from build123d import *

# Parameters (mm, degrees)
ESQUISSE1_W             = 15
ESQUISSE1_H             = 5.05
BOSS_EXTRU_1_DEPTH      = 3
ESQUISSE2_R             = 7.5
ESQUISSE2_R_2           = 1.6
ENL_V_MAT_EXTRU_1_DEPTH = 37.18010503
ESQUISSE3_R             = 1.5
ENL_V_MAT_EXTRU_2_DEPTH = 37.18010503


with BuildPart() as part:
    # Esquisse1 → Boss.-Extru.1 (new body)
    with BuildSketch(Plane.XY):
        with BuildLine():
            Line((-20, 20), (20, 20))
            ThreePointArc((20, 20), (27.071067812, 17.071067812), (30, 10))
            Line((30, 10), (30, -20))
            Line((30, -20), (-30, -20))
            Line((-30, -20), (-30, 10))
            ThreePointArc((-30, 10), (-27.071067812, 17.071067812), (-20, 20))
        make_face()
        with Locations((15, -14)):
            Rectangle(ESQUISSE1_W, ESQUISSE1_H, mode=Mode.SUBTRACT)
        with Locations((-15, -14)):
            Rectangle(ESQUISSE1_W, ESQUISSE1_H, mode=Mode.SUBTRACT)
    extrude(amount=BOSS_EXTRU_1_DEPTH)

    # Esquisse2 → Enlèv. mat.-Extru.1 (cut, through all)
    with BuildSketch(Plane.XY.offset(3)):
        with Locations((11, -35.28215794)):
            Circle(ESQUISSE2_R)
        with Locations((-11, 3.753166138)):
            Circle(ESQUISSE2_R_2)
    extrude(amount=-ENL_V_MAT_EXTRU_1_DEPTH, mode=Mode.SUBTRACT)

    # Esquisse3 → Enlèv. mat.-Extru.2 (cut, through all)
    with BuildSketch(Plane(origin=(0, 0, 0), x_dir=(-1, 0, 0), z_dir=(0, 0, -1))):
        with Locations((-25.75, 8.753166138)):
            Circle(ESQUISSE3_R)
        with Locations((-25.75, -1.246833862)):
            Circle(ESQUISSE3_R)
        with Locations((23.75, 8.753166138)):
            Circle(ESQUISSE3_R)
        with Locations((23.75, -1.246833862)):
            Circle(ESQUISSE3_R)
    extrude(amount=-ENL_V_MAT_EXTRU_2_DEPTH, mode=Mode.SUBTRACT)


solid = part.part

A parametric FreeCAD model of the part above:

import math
import FreeCAD as App
import Part
import Sketcher
from FreeCAD import Vector
Q = App.Units.Quantity


def add_polygon(sketch, points):
    """Adds a closed chain of lines whose ends are joined by coincident constraints."""
    first, n = sketch.GeometryCount, len(points)
    for a, b in zip(points, points[1:] + points[:1]):
        sketch.addGeometry(Part.LineSegment(App.Vector(*a, 0), App.Vector(*b, 0)), False)
    for i in range(n):
        sketch.addConstraint(Sketcher.Constraint("Coincident", first + i, 2, first + (i + 1) % n, 1))

doc = App.newDocument("Part")
body = doc.addObject("PartDesign::Body", "Body")

sketch1 = body.newObject("Sketcher::SketchObject", "Sketch")
sketch1.AttachmentSupport = (doc.getObject("XY_Plane"), [""])
sketch1.MapMode = "FlatFace"
sketch1.addGeometry(Part.LineSegment(Vector(20, 20, 0), Vector(-20, 20, 0)), False)
sketch1.addGeometry(Part.ArcOfCircle(Part.Circle(Vector(-20, 10, 0), Vector(0, 0, 1), 10), math.radians(90), math.radians(180)), False)
sketch1.addGeometry(Part.LineSegment(Vector(-30, 10, 0), Vector(-30, -20, 0)), False)
sketch1.addGeometry(Part.LineSegment(Vector(-30, -20, 0), Vector(30, -20, 0)), False)
sketch1.addGeometry(Part.LineSegment(Vector(30, -20, 0), Vector(30, 10, 0)), False)
sketch1.addGeometry(Part.ArcOfCircle(Part.Circle(Vector(20, 10, 0), Vector(0, 0, 1), 10), math.radians(0), math.radians(90)), False)
add_polygon(sketch1, [(8, -17), (8, -11), (22, -11), (22, -17)])
add_polygon(sketch1, [(-22, -17), (-22, -11), (-8, -11), (-8, -17)])
sketch1.addConstraint(Sketcher.Constraint("Tangent", 0, 2, 1, 1))
sketch1.addConstraint(Sketcher.Constraint("Tangent", 1, 2, 2, 1))
sketch1.addConstraint(Sketcher.Constraint("Coincident", 2, 2, 3, 1))
sketch1.addConstraint(Sketcher.Constraint("Coincident", 3, 2, 4, 1))
sketch1.addConstraint(Sketcher.Constraint("Tangent", 4, 2, 5, 1))
sketch1.addConstraint(Sketcher.Constraint("Tangent", 5, 2, 0, 1))
sketch1.addConstraint(Sketcher.Constraint("Horizontal", 0))
sketch1.addConstraint(Sketcher.Constraint("Vertical", 2))
sketch1.addConstraint(Sketcher.Constraint("Horizontal", 3))
sketch1.addConstraint(Sketcher.Constraint("Vertical", 4))
sketch1.addConstraint(Sketcher.Constraint("Vertical", 6))
sketch1.addConstraint(Sketcher.Constraint("Horizontal", 7))
sketch1.addConstraint(Sketcher.Constraint("Vertical", 8))
sketch1.addConstraint(Sketcher.Constraint("Horizontal", 9))
sketch1.addConstraint(Sketcher.Constraint("Vertical", 10))
sketch1.addConstraint(Sketcher.Constraint("Horizontal", 11))
sketch1.addConstraint(Sketcher.Constraint("Vertical", 12))
sketch1.addConstraint(Sketcher.Constraint("Horizontal", 13))
sketch1.addConstraint(Sketcher.Constraint("Equal", 1, 5))
sketch1.addConstraint(Sketcher.Constraint("Symmetric", 7, 2, 10, 2, -2))
sketch1.addConstraint(Sketcher.Constraint("Symmetric", 9, 2, 12, 2, -2))
sketch1.addConstraint(Sketcher.Constraint("Radius", 1, Q("10 mm")))
sketch1.addConstraint(Sketcher.Constraint("DistanceX", 0, 2, 0, 1, Q("40 mm")))
sketch1.addConstraint(Sketcher.Constraint("DistanceX", 7, 1, 7, 2, Q("15 mm")))
sketch1.addConstraint(Sketcher.Constraint("DistanceY", 2, 2, 2, 1, Q("30 mm")))
sketch1.addConstraint(Sketcher.Constraint("DistanceX", 1, 3, -1, 1, Q("20 mm")))
sketch1.addConstraint(Sketcher.Constraint("DistanceY", -1, 1, 1, 3, Q("10 mm")))
sketch1.addConstraint(Sketcher.Constraint("DistanceX", 10, 2, 6, 2, Q("30 mm")))
sketch1.addConstraint(Sketcher.Constraint("DistanceY", 6, 1, 6, 2, Q("5.05 mm")))
sketch1.addConstraint(Sketcher.Constraint("DistanceY", 6, 2, -1, 1, Q("11.475 mm")))
pad1 = body.newObject("PartDesign::Pad", "Pad")
pad1.Profile = sketch1
pad1.Length = 3

sketch2 = body.newObject("Sketcher::SketchObject", "Sketch001")
sketch2.AttachmentSupport = (doc.getObject("XY_Plane"), [""])
sketch2.MapMode = "FlatFace"
sketch2.AttachmentOffset = App.Placement(Vector(0, 0, 3), App.Rotation())
sketch2.addGeometry(Part.Circle(Vector(11, -35.3, 0), Vector(0, 0, 1), 7.5), False)
sketch2.addGeometry(Part.Circle(Vector(-11, 3.8, 0), Vector(0, 0, 1), 1.6), False)
sketch2.addConstraint(Sketcher.Constraint("Diameter", 0, Q("15 mm")))
sketch2.addConstraint(Sketcher.Constraint("Diameter", 1, Q("3.2 mm")))
sketch2.addConstraint(Sketcher.Constraint("DistanceX", -1, 1, 0, 3, Q("11 mm")))
sketch2.addConstraint(Sketcher.Constraint("DistanceX", 1, 3, -1, 1, Q("11 mm")))
sketch2.addConstraint(Sketcher.Constraint("DistanceY", 0, 3, -1, 1, Q("35.282158 mm")))
sketch2.addConstraint(Sketcher.Constraint("DistanceY", -1, 1, 1, 3, Q("3.753166 mm")))
pocket1 = body.newObject("PartDesign::Pocket", "Pocket")
pocket1.Profile = sketch2
pocket1.Type = "ThroughAll"

sketch3 = body.newObject("Sketcher::SketchObject", "Sketch002")
sketch3.AttachmentSupport = (doc.getObject("XY_Plane"), [""])
sketch3.MapMode = "FlatFace"
sketch3.addGeometry(Part.Circle(Vector(25.8, 8.8, 0), Vector(0, 0, 1), 1.5), False)
sketch3.addGeometry(Part.Circle(Vector(25.8, -1.2, 0), Vector(0, 0, 1), 1.5), False)
sketch3.addGeometry(Part.Circle(Vector(-23.8, 8.8, 0), Vector(0, 0, 1), 1.5), False)
sketch3.addGeometry(Part.Circle(Vector(-23.8, -1.2, 0), Vector(0, 0, 1), 1.5), False)
sketch3.addConstraint(Sketcher.Constraint("Equal", 0, 1))
sketch3.addConstraint(Sketcher.Constraint("Equal", 1, 2))
sketch3.addConstraint(Sketcher.Constraint("Equal", 2, 3))
sketch3.addConstraint(Sketcher.Constraint("Horizontal", 0, 3, 2, 3))
sketch3.addConstraint(Sketcher.Constraint("Horizontal", 1, 3, 3, 3))
sketch3.addConstraint(Sketcher.Constraint("Vertical", 0, 3, 1, 3))
sketch3.addConstraint(Sketcher.Constraint("Vertical", 2, 3, 3, 3))
sketch3.addConstraint(Sketcher.Constraint("Diameter", 0, Q("3 mm")))
sketch3.addConstraint(Sketcher.Constraint("DistanceY", 1, 3, 0, 3, Q("10 mm")))
sketch3.addConstraint(Sketcher.Constraint("DistanceX", 2, 3, 0, 3, Q("49.5 mm")))
sketch3.addConstraint(Sketcher.Constraint("DistanceX", -1, 1, 0, 3, Q("25.75 mm")))
sketch3.addConstraint(Sketcher.Constraint("DistanceY", -1, 1, 0, 3, Q("8.753166 mm")))
pocket2 = body.newObject("PartDesign::Pocket", "Pocket001")
pocket2.Profile = sketch3
pocket2.Type = "ThroughAll"
pocket2.Reversed = True

doc.recompute()
